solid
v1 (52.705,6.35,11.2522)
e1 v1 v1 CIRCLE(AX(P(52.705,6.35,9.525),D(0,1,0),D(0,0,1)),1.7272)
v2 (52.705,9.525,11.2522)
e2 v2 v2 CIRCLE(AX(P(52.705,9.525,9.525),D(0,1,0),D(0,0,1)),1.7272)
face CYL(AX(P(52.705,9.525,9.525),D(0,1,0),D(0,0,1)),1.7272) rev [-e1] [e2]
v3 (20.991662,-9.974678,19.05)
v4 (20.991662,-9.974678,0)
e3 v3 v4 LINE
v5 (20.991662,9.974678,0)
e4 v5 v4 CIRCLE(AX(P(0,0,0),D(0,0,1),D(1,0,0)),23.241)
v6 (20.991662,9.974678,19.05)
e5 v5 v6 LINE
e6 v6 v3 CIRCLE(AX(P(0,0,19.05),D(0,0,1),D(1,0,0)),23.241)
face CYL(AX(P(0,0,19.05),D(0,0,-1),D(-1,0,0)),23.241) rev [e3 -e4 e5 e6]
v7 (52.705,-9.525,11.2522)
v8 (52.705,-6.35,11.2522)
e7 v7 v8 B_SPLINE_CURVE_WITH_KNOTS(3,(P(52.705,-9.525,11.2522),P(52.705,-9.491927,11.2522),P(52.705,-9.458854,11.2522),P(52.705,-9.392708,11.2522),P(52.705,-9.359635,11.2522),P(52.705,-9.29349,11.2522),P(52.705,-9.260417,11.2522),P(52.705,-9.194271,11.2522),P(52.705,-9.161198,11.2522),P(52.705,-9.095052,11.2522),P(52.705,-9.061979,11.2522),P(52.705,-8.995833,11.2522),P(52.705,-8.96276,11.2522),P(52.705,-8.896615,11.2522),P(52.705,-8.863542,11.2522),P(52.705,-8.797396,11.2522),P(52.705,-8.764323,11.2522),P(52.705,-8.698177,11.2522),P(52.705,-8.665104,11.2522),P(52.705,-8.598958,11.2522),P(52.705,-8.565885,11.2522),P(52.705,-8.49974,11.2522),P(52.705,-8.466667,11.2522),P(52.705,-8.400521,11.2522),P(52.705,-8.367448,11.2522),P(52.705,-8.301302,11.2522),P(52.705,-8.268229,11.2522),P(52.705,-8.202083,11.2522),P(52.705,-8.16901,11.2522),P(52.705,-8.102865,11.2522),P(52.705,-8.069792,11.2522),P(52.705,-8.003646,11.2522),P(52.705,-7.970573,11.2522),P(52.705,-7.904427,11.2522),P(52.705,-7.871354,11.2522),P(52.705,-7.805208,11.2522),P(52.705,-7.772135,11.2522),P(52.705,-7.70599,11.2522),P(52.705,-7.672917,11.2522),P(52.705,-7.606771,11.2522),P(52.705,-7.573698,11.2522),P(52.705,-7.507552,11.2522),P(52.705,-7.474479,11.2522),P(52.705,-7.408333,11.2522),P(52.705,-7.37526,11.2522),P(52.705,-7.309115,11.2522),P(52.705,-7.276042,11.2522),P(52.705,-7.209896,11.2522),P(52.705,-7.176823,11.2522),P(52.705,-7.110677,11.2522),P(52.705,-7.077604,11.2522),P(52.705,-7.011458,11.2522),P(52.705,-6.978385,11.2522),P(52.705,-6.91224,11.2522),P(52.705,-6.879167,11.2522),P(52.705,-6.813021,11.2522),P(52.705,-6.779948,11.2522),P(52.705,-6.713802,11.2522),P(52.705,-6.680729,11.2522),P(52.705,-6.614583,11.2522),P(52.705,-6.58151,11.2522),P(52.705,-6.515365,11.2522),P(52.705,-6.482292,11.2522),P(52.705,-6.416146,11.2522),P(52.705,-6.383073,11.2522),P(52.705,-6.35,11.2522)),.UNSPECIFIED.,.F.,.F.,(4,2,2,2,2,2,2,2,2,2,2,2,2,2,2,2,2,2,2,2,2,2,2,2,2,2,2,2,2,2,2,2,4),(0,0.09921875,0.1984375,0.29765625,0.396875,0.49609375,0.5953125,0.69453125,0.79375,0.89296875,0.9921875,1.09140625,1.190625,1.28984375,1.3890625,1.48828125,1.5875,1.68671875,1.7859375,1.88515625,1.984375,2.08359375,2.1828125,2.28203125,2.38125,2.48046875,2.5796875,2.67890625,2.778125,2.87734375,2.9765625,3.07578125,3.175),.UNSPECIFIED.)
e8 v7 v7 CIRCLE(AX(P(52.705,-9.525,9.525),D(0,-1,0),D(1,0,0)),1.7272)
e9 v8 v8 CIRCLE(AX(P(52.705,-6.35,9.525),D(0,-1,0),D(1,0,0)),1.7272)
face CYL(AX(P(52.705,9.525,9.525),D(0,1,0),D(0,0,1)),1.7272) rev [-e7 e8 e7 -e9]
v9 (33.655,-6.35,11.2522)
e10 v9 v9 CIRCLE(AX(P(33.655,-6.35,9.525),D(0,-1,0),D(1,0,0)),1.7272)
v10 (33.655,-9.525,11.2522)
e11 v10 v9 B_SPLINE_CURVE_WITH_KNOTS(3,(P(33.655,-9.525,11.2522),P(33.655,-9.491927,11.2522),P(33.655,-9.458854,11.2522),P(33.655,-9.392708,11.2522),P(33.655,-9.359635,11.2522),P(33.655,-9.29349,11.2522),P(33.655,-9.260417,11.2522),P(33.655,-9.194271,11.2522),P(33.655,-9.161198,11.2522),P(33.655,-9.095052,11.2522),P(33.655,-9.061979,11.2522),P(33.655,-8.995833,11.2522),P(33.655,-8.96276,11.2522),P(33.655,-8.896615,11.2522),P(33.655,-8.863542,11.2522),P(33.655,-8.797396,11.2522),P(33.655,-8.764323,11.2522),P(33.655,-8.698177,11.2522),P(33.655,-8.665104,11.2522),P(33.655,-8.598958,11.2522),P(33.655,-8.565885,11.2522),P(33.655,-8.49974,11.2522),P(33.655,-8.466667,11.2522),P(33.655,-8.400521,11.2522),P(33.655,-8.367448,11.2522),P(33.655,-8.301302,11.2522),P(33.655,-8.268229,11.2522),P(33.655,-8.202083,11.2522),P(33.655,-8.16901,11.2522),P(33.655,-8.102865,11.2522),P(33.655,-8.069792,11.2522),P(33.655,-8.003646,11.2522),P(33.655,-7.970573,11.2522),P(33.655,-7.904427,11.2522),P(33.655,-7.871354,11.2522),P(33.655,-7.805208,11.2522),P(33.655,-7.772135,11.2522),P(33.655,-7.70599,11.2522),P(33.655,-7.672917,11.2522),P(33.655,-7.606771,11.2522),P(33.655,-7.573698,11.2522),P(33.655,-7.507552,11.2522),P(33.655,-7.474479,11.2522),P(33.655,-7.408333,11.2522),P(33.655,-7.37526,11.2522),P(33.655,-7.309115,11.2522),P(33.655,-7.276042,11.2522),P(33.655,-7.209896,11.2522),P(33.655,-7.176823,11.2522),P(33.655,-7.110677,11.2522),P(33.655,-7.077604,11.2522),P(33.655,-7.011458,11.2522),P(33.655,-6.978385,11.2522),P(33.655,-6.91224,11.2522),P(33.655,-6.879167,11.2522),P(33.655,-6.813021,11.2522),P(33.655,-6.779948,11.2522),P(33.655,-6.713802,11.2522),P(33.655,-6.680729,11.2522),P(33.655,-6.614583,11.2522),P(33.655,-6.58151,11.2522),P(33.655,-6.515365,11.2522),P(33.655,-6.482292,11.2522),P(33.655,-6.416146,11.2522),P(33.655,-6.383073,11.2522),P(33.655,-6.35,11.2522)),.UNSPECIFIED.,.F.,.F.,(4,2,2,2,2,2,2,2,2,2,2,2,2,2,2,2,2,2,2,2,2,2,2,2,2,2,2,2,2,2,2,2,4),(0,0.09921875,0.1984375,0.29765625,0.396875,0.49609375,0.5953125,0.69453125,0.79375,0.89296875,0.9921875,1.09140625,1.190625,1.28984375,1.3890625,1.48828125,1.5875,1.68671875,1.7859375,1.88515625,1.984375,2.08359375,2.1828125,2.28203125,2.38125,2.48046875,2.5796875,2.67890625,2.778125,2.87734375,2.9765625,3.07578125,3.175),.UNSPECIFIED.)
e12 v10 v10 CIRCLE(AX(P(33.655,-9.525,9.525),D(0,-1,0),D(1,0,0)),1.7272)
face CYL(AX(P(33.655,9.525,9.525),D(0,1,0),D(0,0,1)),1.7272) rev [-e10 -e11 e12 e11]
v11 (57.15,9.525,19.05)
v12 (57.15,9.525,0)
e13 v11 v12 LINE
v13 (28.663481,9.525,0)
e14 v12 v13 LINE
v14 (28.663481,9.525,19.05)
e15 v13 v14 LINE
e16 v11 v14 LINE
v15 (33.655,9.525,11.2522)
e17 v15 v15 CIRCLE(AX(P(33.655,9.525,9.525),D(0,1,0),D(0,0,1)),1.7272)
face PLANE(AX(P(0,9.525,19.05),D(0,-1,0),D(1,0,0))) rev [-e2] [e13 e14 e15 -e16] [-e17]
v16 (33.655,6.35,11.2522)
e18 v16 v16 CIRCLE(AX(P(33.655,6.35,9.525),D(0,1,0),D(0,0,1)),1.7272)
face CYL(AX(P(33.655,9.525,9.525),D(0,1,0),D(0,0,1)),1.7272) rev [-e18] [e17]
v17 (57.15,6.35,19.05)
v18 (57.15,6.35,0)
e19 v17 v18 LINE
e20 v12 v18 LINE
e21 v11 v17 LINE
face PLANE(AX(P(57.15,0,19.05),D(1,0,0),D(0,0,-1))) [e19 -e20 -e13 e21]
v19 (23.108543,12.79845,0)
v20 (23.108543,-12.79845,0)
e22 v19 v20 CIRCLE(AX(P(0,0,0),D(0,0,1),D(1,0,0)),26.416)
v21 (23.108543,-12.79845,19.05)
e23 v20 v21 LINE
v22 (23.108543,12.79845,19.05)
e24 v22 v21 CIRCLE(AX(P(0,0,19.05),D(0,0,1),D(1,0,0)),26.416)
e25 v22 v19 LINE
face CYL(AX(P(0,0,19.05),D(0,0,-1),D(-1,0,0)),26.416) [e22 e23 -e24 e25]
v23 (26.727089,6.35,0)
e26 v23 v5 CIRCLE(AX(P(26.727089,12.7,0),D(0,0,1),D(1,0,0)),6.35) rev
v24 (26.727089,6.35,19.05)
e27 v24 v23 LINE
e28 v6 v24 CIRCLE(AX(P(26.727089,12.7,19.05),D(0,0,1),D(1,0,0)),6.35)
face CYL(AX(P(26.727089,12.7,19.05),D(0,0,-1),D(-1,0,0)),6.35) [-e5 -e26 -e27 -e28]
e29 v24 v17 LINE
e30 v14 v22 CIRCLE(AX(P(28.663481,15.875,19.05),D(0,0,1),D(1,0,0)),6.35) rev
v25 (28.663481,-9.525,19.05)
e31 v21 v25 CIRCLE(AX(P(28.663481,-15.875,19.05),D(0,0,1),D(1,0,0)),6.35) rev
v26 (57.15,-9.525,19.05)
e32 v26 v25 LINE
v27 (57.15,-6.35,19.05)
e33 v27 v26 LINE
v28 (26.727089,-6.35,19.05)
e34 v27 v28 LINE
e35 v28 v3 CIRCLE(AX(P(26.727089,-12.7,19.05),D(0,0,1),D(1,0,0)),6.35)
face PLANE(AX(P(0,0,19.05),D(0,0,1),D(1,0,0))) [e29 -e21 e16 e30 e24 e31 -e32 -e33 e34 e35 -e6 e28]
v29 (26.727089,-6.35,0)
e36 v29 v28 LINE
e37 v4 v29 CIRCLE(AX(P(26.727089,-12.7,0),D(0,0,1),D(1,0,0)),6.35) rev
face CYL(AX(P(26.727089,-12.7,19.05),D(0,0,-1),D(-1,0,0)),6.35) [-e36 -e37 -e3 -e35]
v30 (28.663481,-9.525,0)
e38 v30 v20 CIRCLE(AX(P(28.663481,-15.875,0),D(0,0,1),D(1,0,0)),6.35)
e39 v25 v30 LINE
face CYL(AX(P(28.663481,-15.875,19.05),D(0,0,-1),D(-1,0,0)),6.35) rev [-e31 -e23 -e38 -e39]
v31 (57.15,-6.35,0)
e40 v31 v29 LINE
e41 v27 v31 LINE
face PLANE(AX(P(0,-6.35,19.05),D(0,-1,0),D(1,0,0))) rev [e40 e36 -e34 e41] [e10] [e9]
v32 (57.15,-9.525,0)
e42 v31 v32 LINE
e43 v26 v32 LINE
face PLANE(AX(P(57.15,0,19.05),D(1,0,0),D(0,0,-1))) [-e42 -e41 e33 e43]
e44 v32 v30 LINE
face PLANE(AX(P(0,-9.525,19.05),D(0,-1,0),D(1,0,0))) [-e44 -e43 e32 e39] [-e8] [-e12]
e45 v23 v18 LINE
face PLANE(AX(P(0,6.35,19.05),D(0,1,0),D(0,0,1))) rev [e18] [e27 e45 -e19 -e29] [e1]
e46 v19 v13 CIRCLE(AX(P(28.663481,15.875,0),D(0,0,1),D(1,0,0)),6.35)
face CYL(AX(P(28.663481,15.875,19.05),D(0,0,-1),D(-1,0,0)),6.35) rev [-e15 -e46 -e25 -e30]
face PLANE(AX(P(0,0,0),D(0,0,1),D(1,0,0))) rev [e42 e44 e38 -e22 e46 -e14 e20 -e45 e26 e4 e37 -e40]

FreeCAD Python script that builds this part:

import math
import FreeCAD as App
import Part
import Sketcher

V = App.Vector
Q = App.Units.Quantity


def edges_at(feature, points):
    """Names of the edges that pass closest to the given points."""
    edges = feature.Shape.Edges
    near = lambda p: min(range(len(edges)), key=lambda i: edges[i].distToShape(Part.Vertex(*p))[0])
    return sorted({f"Edge{near(p) + 1}" for p in points})

doc = App.newDocument("Part")
body = doc.addObject("PartDesign::Body", "Body")

# Sketch on XY plane
sketch1 = body.newObject("Sketcher::SketchObject", "Sketch")
sketch1.AttachmentSupport = (doc.getObject("XY_Plane"), [""])
sketch1.MapMode = "FlatFace"
sketch1.addGeometry(Part.ArcOfCircle(Part.Circle(V(0, 0, 0), V(0, 0, 1), 23.2), math.radians(16), math.radians(344)), False)
sketch1.addGeometry(Part.LineSegment(V(22.4, 6.3, 0), V(57.1, 6.3, 0)), False)
sketch1.addGeometry(Part.LineSegment(V(57.1, 6.3, 0), V(57.1, 9.5, 0)), False)
sketch1.addGeometry(Part.LineSegment(V(57.1, 9.5, 0), V(24.6, 9.5, 0)), False)
sketch1.addGeometry(Part.ArcOfCircle(Part.Circle(V(0, 0, 0), V(0, 0, 1), 26.4), math.radians(21), math.radians(339)), False)
sketch1.addGeometry(Part.LineSegment(V(24.6, -9.5, 0), V(57.1, -9.5, 0)), False)
sketch1.addGeometry(Part.LineSegment(V(57.1, -9.5, 0), V(57.1, -6.3, 0)), False)
sketch1.addGeometry(Part.LineSegment(V(57.1, -6.3, 0), V(22.4, -6.3, 0)), False)
sketch1.addConstraint(Sketcher.Constraint("Coincident", 0, 1, 1, 1))
sketch1.addConstraint(Sketcher.Constraint("Coincident", 1, 2, 2, 1))
sketch1.addConstraint(Sketcher.Constraint("Coincident", 2, 2, 3, 1))
sketch1.addConstraint(Sketcher.Constraint("Coincident", 3, 2, 4, 1))
sketch1.addConstraint(Sketcher.Constraint("Coincident", 4, 2, 5, 1))
sketch1.addConstraint(Sketcher.Constraint("Coincident", 5, 2, 6, 1))
sketch1.addConstraint(Sketcher.Constraint("Coincident", 6, 2, 7, 1))
sketch1.addConstraint(Sketcher.Constraint("Coincident", 7, 2, 0, 2))
sketch1.addConstraint(Sketcher.Constraint("Horizontal", 1))
sketch1.addConstraint(Sketcher.Constraint("Vertical", 2))
sketch1.addConstraint(Sketcher.Constraint("Horizontal", 3))
sketch1.addConstraint(Sketcher.Constraint("Horizontal", 5))
sketch1.addConstraint(Sketcher.Constraint("Vertical", 6))
sketch1.addConstraint(Sketcher.Constraint("Horizontal", 7))
sketch1.addConstraint(Sketcher.Constraint("Coincident", 0, 3, -1, 1))
sketch1.addConstraint(Sketcher.Constraint("Coincident", 4, 3, -1, 1))
sketch1.addConstraint(Sketcher.Constraint("Symmetric", 2, 2, 5, 2, -1))
sketch1.addConstraint(Sketcher.Constraint("Vertical", 0, 1, 7, 2))
sketch1.addConstraint(Sketcher.Constraint("Radius", 4, Q("1.04 in")))
sketch1.addConstraint(Sketcher.Constraint("Radius", 0, Q("0.915 in")))
sketch1.addConstraint(Sketcher.Constraint("DistanceY", 6, 2, 1, 2, Q("0.5 in")))
sketch1.addConstraint(Sketcher.Constraint("DistanceY", 2, 1, 2, 2, Q("0.125 in")))
sketch1.addConstraint(Sketcher.Constraint("DistanceX", -1, 1, 1, 2, Q("2.25 in")))
pad1 = body.newObject("PartDesign::Pad", "Pad")
pad1.Profile = sketch1
pad1.Length = Q("0.75 in")
doc.recompute()

fillet = body.newObject("PartDesign::Fillet", "Fillet")
fillet.Base = (pad1, edges_at(pad1, [
    (22.357, 6.35, 9.525),
    (22.357, -6.35, 9.525),
    (24.639, -9.525, 9.525),
    (24.639, 9.525, 9.525),
]))
fillet.Radius = Q("0.25 in")

# Sketch on XZ plane
sketch2 = body.newObject("Sketcher::SketchObject", "Sketch001")
sketch2.AttachmentSupport = (doc.getObject("XZ_Plane"), [""])
sketch2.MapMode = "FlatFace"
sketch2.AttachmentOffset = App.Placement(V(0, 0, -0.375 * 25.4), App.Rotation())
sketch2.addGeometry(Part.Circle(V(33.7, 9.5, 0), V(0, 0, 1), 1.7), False)
sketch2.addGeometry(Part.Circle(V(52.7, 9.5, 0), V(0, 0, 1), 1.7), False)
sketch2.addConstraint(Sketcher.Constraint("Equal", 0, 1))
sketch2.addConstraint(Sketcher.Constraint("Horizontal", 0, 3, 1, 3))
sketch2.addConstraint(Sketcher.Constraint("Diameter", 0, Q("0.136 in")))
sketch2.addConstraint(Sketcher.Constraint("DistanceX", 0, 3, 1, 3, Q("0.75 in")))
sketch2.addConstraint(Sketcher.Constraint("DistanceX", -1, 1, 0, 3, Q("1.325 in")))
sketch2.addConstraint(Sketcher.Constraint("DistanceY", -1, 1, 0, 3, Q("0.375 in")))
doc.recompute()
hole = body.newObject("PartDesign::Hole", "Hole")
hole.Profile = sketch2
hole.ThreadType = "None"
hole.Diameter = Q("0.136 in")
hole.DepthType = "ThroughAll"
hole.Reversed = True

doc.recompute()
